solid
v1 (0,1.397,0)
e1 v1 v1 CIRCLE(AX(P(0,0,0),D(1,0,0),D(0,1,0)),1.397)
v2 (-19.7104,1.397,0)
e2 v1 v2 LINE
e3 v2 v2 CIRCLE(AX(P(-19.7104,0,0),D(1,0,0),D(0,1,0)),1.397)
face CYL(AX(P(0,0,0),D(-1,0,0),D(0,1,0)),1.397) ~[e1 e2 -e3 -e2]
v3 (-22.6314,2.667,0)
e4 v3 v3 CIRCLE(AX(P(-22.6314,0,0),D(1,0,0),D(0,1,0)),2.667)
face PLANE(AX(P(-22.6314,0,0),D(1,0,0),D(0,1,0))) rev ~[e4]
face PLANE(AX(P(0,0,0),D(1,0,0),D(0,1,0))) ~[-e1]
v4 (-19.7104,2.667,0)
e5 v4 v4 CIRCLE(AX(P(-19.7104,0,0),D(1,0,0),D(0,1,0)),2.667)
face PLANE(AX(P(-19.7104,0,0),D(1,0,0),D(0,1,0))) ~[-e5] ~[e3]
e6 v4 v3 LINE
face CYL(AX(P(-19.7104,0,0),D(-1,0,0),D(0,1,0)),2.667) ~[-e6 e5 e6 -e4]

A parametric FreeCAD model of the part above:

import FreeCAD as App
import Part
import Sketcher
from FreeCAD import Vector
Q = App.Units.Quantity

doc = App.newDocument("Part")
body = doc.addObject("PartDesign::Body", "Body")

sketch1 = body.newObject("Sketcher::SketchObject", "Sketch")
sketch1.AttachmentSupport = (doc.getObject("XY_Plane"), [""])
sketch1.MapMode = "FlatFace"
sketch1.addGeometry([
    Part.LineSegment(Vector(-22.6, 0, 0), Vector(0, 0, 0)),
    Part.LineSegment(Vector(0, 0, 0), Vector(0, 1.4, 0)),
    Part.LineSegment(Vector(0, 1.4, 0), Vector(-19.7, 1.4, 0)),
    Part.LineSegment(Vector(-19.7, 1.4, 0), Vector(-19.7, 2.7, 0)),
    Part.LineSegment(Vector(-19.7, 2.7, 0), Vector(-22.6, 2.7, 0)),
    Part.LineSegment(Vector(-22.6, 2.7, 0), Vector(-22.6, 0, 0)),
], False)
sketch1.addConstraint([
    Sketcher.Constraint("Coincident", 0, 2, 1, 1),
    Sketcher.Constraint("Coincident", 1, 2, 2, 1),
    Sketcher.Constraint("Coincident", 2, 2, 3, 1),
    Sketcher.Constraint("Coincident", 3, 2, 4, 1),
    Sketcher.Constraint("Coincident", 4, 2, 5, 1),
    Sketcher.Constraint("Coincident", 5, 2, 0, 1),
    Sketcher.Constraint("Horizontal", 0),
    Sketcher.Constraint("Vertical", 1),
    Sketcher.Constraint("Horizontal", 2),
    Sketcher.Constraint("Vertical", 3),
    Sketcher.Constraint("Horizontal", 4),
    Sketcher.Constraint("Vertical", 5),
    Sketcher.Constraint("Coincident", 0, 2, -1, 1),
    Sketcher.Constraint("DistanceX", 2, 2, 2, 1, Q("0.776 in")),
    Sketcher.Constraint("DistanceX", 4, 2, 4, 1, Q("0.115 in")),
    Sketcher.Constraint("DistanceY", 3, 1, 3, 2, Q("0.05 in")),
    Sketcher.Constraint("DistanceY", 1, 1, 1, 2, Q("0.055 in")),
])
revolution = body.newObject("PartDesign::Revolution", "Revolution")
revolution.Profile = sketch1
revolution.ReferenceAxis = (sketch1, ["H_Axis"])
revolution.Angle = 360

doc.recompute()
